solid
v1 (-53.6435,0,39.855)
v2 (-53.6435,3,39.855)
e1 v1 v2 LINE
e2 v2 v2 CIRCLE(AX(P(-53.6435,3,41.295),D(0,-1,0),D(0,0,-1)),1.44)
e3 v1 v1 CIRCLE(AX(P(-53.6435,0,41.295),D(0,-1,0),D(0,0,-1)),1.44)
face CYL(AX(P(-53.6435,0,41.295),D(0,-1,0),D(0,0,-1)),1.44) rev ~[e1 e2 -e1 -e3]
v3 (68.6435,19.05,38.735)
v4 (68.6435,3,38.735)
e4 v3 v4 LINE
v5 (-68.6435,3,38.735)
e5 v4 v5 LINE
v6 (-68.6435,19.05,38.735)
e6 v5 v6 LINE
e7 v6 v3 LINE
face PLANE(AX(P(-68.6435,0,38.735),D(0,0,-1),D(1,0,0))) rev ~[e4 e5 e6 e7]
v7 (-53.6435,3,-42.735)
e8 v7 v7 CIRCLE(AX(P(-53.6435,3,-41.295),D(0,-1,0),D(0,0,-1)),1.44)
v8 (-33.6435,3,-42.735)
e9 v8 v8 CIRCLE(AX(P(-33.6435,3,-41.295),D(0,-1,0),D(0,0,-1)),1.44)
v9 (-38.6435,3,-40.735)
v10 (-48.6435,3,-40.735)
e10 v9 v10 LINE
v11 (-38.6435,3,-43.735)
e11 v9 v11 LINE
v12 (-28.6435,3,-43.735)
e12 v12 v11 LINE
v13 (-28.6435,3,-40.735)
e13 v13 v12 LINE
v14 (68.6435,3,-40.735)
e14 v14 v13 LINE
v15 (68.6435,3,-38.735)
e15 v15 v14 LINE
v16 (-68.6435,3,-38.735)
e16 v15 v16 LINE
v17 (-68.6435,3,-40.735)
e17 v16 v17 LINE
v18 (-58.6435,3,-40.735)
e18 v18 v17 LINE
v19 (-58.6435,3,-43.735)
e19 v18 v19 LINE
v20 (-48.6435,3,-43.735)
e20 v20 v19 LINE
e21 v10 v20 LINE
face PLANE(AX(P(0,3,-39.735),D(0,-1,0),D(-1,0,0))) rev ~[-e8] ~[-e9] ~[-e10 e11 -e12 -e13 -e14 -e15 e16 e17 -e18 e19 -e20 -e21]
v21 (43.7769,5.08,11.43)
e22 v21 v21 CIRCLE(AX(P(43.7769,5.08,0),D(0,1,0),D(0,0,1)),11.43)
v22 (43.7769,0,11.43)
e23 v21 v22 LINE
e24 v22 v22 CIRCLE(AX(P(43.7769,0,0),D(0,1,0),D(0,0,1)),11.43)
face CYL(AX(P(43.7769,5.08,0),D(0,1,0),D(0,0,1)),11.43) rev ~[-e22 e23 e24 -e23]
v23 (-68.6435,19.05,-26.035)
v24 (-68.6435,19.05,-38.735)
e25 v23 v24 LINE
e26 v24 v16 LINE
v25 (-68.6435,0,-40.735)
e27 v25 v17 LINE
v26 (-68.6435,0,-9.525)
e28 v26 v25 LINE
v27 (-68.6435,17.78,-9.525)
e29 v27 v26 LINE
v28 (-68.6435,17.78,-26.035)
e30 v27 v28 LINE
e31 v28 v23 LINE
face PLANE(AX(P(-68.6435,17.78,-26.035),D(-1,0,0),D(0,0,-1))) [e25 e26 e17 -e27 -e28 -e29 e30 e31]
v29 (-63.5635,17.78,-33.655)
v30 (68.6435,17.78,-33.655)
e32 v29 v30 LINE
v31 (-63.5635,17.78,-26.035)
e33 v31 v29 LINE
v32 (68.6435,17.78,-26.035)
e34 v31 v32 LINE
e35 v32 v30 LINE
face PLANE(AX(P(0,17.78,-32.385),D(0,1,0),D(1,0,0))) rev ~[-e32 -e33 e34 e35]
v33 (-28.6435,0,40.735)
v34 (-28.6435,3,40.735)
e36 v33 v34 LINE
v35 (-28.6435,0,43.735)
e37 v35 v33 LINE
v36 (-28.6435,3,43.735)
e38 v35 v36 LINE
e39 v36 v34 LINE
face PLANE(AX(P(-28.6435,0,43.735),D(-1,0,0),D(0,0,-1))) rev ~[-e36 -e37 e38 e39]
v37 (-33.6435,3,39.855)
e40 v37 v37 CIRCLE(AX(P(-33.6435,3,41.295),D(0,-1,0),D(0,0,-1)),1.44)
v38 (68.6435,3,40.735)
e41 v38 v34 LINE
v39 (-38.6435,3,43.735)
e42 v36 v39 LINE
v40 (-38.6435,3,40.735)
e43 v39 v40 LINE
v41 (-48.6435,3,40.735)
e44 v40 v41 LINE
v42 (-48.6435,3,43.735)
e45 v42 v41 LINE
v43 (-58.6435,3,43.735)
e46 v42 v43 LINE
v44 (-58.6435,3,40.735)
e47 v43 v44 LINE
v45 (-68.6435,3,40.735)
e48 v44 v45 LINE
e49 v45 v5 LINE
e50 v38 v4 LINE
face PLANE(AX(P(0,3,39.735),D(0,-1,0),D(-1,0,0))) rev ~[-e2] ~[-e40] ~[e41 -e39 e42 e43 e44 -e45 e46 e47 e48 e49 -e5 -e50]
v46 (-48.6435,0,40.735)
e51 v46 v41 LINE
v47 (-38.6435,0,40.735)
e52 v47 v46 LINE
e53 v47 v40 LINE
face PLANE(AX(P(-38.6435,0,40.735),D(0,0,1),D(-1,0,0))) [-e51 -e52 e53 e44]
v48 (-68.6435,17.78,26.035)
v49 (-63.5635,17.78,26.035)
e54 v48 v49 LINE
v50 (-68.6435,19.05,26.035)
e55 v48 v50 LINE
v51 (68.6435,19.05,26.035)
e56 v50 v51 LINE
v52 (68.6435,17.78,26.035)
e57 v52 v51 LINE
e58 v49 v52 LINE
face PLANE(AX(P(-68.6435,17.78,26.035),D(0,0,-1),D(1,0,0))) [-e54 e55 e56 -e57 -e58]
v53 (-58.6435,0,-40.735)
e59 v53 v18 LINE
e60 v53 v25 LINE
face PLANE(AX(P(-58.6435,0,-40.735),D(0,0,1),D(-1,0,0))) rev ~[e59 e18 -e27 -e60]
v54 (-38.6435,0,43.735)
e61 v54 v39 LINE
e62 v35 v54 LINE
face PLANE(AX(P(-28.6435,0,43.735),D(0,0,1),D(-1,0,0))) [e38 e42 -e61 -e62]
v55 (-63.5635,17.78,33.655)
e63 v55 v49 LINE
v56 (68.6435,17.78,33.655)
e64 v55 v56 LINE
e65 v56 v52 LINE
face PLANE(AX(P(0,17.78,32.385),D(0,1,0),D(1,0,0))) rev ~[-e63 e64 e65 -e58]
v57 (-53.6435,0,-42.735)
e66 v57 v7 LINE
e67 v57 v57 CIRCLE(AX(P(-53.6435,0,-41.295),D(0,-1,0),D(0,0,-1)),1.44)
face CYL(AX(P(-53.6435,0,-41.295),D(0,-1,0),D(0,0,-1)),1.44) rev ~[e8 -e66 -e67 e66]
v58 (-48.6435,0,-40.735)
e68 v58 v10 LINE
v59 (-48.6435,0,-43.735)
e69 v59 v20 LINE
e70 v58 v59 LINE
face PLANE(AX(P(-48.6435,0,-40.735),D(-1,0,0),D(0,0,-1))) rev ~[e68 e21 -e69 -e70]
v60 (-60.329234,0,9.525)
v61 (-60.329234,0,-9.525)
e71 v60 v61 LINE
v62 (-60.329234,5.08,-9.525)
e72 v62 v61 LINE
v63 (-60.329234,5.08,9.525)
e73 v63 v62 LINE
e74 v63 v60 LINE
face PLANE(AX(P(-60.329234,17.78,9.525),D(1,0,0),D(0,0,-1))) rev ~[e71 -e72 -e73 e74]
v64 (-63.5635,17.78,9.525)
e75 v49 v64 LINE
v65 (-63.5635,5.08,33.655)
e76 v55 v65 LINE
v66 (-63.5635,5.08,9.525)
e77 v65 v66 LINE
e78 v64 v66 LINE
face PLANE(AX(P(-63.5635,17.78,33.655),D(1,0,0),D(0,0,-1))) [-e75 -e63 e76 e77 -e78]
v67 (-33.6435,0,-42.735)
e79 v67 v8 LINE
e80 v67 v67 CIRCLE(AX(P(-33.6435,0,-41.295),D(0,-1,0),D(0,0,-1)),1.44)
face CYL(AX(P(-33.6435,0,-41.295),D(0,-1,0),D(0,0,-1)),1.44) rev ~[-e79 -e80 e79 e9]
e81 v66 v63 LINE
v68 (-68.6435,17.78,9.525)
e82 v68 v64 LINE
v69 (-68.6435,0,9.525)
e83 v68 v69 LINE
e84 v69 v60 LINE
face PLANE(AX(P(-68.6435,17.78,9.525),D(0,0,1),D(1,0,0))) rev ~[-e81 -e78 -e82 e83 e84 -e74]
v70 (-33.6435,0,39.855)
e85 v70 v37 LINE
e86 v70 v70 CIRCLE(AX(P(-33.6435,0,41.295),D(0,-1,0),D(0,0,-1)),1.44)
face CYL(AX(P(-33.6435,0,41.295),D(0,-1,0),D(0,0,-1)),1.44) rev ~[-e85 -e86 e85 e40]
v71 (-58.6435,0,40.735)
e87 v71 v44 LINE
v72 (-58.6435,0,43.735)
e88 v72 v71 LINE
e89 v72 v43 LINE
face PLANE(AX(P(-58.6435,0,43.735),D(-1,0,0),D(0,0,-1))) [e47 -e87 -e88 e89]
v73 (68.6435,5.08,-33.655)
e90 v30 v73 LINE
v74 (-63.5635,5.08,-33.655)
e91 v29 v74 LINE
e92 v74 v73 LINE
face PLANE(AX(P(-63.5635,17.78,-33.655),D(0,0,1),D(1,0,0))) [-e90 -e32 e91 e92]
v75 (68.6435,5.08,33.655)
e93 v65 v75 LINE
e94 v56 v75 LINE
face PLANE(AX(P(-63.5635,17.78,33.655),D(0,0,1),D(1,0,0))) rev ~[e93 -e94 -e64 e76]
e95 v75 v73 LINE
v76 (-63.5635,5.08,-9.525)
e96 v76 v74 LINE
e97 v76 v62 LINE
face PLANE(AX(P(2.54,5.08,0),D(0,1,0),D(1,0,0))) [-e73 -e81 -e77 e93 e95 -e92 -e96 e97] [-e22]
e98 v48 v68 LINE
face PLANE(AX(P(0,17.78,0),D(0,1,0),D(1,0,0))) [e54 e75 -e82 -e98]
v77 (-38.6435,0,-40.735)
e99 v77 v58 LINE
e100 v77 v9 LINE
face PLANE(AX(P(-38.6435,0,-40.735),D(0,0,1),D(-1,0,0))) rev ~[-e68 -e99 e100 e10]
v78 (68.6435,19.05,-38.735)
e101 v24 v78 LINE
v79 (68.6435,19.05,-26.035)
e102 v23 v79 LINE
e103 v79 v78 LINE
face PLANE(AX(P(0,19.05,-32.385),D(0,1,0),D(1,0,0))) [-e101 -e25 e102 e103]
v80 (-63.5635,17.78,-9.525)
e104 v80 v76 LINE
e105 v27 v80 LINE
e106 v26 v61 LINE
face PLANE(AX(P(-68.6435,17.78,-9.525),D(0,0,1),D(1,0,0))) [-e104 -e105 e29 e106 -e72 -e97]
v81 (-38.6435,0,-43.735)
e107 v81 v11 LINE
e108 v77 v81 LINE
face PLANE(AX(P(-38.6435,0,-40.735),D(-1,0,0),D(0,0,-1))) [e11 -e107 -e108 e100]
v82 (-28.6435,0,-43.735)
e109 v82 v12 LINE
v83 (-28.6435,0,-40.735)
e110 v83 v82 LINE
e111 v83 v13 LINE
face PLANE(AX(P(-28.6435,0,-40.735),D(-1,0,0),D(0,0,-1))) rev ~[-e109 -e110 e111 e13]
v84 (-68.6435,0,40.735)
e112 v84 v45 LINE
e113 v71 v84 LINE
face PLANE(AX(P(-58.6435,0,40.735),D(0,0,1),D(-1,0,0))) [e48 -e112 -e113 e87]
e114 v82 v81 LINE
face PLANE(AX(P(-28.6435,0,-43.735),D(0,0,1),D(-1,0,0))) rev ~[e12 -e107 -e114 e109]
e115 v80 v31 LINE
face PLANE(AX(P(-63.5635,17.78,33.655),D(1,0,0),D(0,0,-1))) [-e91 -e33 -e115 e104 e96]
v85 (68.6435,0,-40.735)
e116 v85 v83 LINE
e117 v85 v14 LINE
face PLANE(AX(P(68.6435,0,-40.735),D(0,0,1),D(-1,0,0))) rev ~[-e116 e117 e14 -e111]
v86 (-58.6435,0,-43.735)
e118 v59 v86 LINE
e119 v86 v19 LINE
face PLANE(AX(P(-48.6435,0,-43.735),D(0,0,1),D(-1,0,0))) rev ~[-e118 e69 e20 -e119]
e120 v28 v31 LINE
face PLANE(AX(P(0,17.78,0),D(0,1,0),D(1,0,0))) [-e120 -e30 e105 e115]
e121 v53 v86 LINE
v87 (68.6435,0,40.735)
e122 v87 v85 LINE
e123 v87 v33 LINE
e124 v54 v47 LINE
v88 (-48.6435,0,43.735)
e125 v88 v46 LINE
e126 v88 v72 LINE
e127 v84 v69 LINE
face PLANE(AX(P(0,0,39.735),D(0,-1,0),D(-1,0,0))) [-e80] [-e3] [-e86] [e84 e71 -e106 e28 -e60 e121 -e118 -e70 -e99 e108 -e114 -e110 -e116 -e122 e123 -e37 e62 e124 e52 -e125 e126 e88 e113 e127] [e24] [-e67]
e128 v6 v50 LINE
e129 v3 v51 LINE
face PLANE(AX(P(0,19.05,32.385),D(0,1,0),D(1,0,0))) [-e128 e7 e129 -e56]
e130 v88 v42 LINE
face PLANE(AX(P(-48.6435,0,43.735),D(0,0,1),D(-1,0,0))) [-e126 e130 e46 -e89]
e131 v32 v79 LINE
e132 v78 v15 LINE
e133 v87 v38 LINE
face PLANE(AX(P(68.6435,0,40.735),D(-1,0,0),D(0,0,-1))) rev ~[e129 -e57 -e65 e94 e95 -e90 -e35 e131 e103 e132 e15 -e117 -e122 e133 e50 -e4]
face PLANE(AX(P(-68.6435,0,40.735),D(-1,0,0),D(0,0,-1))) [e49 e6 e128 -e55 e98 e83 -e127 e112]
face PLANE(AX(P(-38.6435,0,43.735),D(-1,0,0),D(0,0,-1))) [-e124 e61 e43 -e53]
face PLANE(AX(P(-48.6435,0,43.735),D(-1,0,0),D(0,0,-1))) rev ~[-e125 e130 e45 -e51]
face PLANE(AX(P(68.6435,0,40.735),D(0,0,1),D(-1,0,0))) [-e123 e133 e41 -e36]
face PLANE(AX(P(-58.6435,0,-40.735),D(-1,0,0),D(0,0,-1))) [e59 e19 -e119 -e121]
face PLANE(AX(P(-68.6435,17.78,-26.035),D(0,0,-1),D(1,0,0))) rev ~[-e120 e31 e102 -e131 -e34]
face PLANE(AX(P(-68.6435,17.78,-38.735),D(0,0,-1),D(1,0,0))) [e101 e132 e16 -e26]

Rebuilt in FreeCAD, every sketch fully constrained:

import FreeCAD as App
import Part
import Sketcher
Q = App.Units.Quantity

doc = App.newDocument("Part")
body = doc.addObject("PartDesign::Body", "Body")

sketch1 = body.newObject("Sketcher::SketchObject", "Sketch")
sketch1.AttachmentSupport = (doc.getObject("XZ_Plane"), [""])
sketch1.MapMode = "FlatFace"
sketch1.addGeometry([
    Part.LineSegment(App.Vector(-69, -39, 0), App.Vector(-69, 39, 0)),
    Part.LineSegment(App.Vector(-69, 39, 0), App.Vector(69, 39, 0)),
    Part.LineSegment(App.Vector(69, 39, 0), App.Vector(69, -39, 0)),
    Part.LineSegment(App.Vector(69, -39, 0), App.Vector(-69, -39, 0)),
], False)
sketch1.addConstraint([
    Sketcher.Constraint("Coincident", 0, 2, 1, 1),
    Sketcher.Constraint("Coincident", 1, 2, 2, 1),
    Sketcher.Constraint("Coincident", 2, 2, 3, 1),
    Sketcher.Constraint("Coincident", 3, 2, 0, 1),
    Sketcher.Constraint("Vertical", 0),
    Sketcher.Constraint("Horizontal", 1),
    Sketcher.Constraint("Vertical", 2),
    Sketcher.Constraint("Horizontal", 3),
    Sketcher.Constraint("Symmetric", 0, 2, 2, 2, -1, 1),
    Sketcher.Constraint("DistanceY", 0, 1, 0, 2, Q("3.05 in")),
    Sketcher.Constraint("DistanceX", 1, 1, 1, 2, Q("5.405 in")),
])
pad1 = body.newObject("PartDesign::Pad", "Pad")
pad1.Profile = sketch1
pad1.Length = Q("0.7 in")
pad1.Reversed = True

sketch2 = body.newObject("Sketcher::SketchObject", "Sketch001")
sketch2.AttachmentSupport = (doc.getObject("XZ_Plane"), [""])
sketch2.MapMode = "FlatFace"
sketch2.AttachmentOffset = App.Placement(App.Vector(0, 0, -0.7 * 25.4), App.Rotation())
sketch2.addGeometry([
    Part.LineSegment(App.Vector(-64, -34, 0), App.Vector(-64, 34, 0)),
    Part.LineSegment(App.Vector(-64, 34, 0), App.Vector(69, 34, 0)),
    Part.LineSegment(App.Vector(69, 34, 0), App.Vector(69, -34, 0)),
    Part.LineSegment(App.Vector(69, -34, 0), App.Vector(-64, -34, 0)),
], False)
sketch2.addConstraint([
    Sketcher.Constraint("Coincident", 0, 2, 1, 1),
    Sketcher.Constraint("Coincident", 1, 2, 2, 1),
    Sketcher.Constraint("Coincident", 2, 2, 3, 1),
    Sketcher.Constraint("Coincident", 3, 2, 0, 1),
    Sketcher.Constraint("Vertical", 0),
    Sketcher.Constraint("Horizontal", 1),
    Sketcher.Constraint("Vertical", 2),
    Sketcher.Constraint("Horizontal", 3),
    Sketcher.Constraint("DistanceY", 0, 1, 0, 2, Q("2.65 in")),
    Sketcher.Constraint("DistanceX", 1, 1, 1, 2, Q("5.205 in")),
    Sketcher.Constraint("DistanceY", -1, 1, 0, 2, Q("1.325 in")),
    Sketcher.Constraint("DistanceX", 0, 2, -1, 1, Q("2.5025 in")),
])
pocket1 = body.newObject("PartDesign::Pocket", "Pocket")
pocket1.Profile = sketch2
pocket1.Length = Q("0.5 in")
pocket1.Reversed = True

sketch3 = body.newObject("Sketcher::SketchObject", "Sketch002")
sketch3.AttachmentSupport = (doc.getObject("XZ_Plane"), [""])
sketch3.MapMode = "FlatFace"
sketch3.AttachmentOffset = App.Placement(App.Vector(0, 0, -0.2 * 25.4), App.Rotation())
sketch3.addGeometry(Part.Circle(App.Vector(44, 0, 0), App.Vector(0, 0, 1), 11), False)
sketch3.addConstraint([
    Sketcher.Constraint("PointOnObject", 0, 3, -1),
    Sketcher.Constraint("Diameter", 0, Q("0.9 in")),
    Sketcher.Constraint("DistanceX", -1, 1, 0, 3, Q("1.7235 in")),
])
pocket2 = body.newObject("PartDesign::Pocket", "Pocket001")
pocket2.Profile = sketch3
pocket2.Type = "ThroughAll"
pocket2.Reversed = True

sketch4 = body.newObject("Sketcher::SketchObject", "Sketch003")
sketch4.AttachmentSupport = (doc.getObject("XZ_Plane"), [""])
sketch4.MapMode = "FlatFace"
sketch4.AttachmentOffset = App.Placement(App.Vector(0, 0, -0.7 * 25.4), App.Rotation())
sketch4.addGeometry([
    Part.LineSegment(App.Vector(-69, -39, 0), App.Vector(-69, -26, 0)),
    Part.LineSegment(App.Vector(-69, -26, 0), App.Vector(69, -26, 0)),
    Part.LineSegment(App.Vector(69, -26, 0), App.Vector(69, -39, 0)),
    Part.LineSegment(App.Vector(69, -39, 0), App.Vector(-69, -39, 0)),
    Part.LineSegment(App.Vector(-69, 26, 0), App.Vector(-69, 39, 0)),
    Part.LineSegment(App.Vector(-69, 39, 0), App.Vector(69, 39, 0)),
    Part.LineSegment(App.Vector(69, 39, 0), App.Vector(69, 26, 0)),
    Part.LineSegment(App.Vector(69, 26, 0), App.Vector(-69, 26, 0)),
], False)
sketch4.addConstraint([
    Sketcher.Constraint("Coincident", 0, 2, 1, 1),
    Sketcher.Constraint("Coincident", 1, 2, 2, 1),
    Sketcher.Constraint("Coincident", 2, 2, 3, 1),
    Sketcher.Constraint("Coincident", 3, 2, 0, 1),
    Sketcher.Constraint("Coincident", 4, 2, 5, 1),
    Sketcher.Constraint("Coincident", 5, 2, 6, 1),
    Sketcher.Constraint("Coincident", 6, 2, 7, 1),
    Sketcher.Constraint("Coincident", 7, 2, 4, 1),
    Sketcher.Constraint("Vertical", 0),
    Sketcher.Constraint("Horizontal", 1),
    Sketcher.Constraint("Vertical", 2),
    Sketcher.Constraint("Horizontal", 3),
    Sketcher.Constraint("Vertical", 4),
    Sketcher.Constraint("Horizontal", 5),
    Sketcher.Constraint("Vertical", 6),
    Sketcher.Constraint("Horizontal", 7),
    Sketcher.Constraint("Symmetric", 2, 2, 4, 2, -1, 1),
    Sketcher.Constraint("Symmetric", 0, 2, 6, 2, -1, 1),
    Sketcher.Constraint("Vertical", 3, 2, 4, 2),
    Sketcher.Constraint("DistanceY", 0, 1, 0, 2, Q("0.5 in")),
    Sketcher.Constraint("DistanceX", 1, 1, 1, 2, Q("5.405 in")),
    Sketcher.Constraint("DistanceY", 0, 2, 4, 2, Q("2.55 in")),
])
pad2 = body.newObject("PartDesign::Pad", "Pad001")
pad2.Profile = sketch4
pad2.Length = Q("0.05 in")
pad2.Reversed = True

sketch5 = body.newObject("Sketcher::SketchObject", "Sketch004")
sketch5.AttachmentSupport = (doc.getObject("XZ_Plane"), [""])
sketch5.MapMode = "FlatFace"
sketch5.AttachmentOffset = App.Placement(App.Vector(0, 0, -0.7 * 25.4), App.Rotation())
sketch5.addGeometry([
    Part.LineSegment(App.Vector(-69, -10, 0), App.Vector(-69, 10, 0)),
    Part.LineSegment(App.Vector(-69, 10, 0), App.Vector(-60, 10, 0)),
    Part.LineSegment(App.Vector(-60, 10, 0), App.Vector(-60, -10, 0)),
    Part.LineSegment(App.Vector(-60, -10, 0), App.Vector(-69, -10, 0)),
], False)
sketch5.addConstraint([
    Sketcher.Constraint("Coincident", 0, 2, 1, 1),
    Sketcher.Constraint("Coincident", 1, 2, 2, 1),
    Sketcher.Constraint("Coincident", 2, 2, 3, 1),
    Sketcher.Constraint("Coincident", 3, 2, 0, 1),
    Sketcher.Constraint("Vertical", 0),
    Sketcher.Constraint("Horizontal", 1),
    Sketcher.Constraint("Vertical", 2),
    Sketcher.Constraint("Horizontal", 3),
    Sketcher.Constraint("DistanceY", 0, 1, 0, 2, Q("0.75 in")),
    Sketcher.Constraint("DistanceY", -1, 1, 0, 2, Q("0.375 in")),
    Sketcher.Constraint("DistanceX", 0, 2, -1, 1, Q("2.7025 in")),
    Sketcher.Constraint("DistanceX", 1, 1, 1, 2, 8.314266),
])
pocket3 = body.newObject("PartDesign::Pocket", "Pocket002")
pocket3.Profile = sketch5
pocket3.Type = "ThroughAll"
pocket3.Reversed = True

sketch6 = body.newObject("Sketcher::SketchObject", "Sketch005")
sketch6.AttachmentSupport = (doc.getObject("XZ_Plane"), [""])
sketch6.MapMode = "FlatFace"
sketch6.addGeometry([
    Part.LineSegment(App.Vector(68.6, 38.7, 0), App.Vector(68.6, 40.7, 0)),
    Part.LineSegment(App.Vector(68.6, 40.7, 0), App.Vector(-28.6, 40.7, 0)),
    Part.LineSegment(App.Vector(-28.6, 40.7, 0), App.Vector(-28.6, 43.7, 0)),
    Part.LineSegment(App.Vector(-28.6, 43.7, 0), App.Vector(-38.6, 43.7, 0)),
    Part.LineSegment(App.Vector(-38.6, 43.7, 0), App.Vector(-38.6, 40.7, 0)),
    Part.LineSegment(App.Vector(-38.6, 40.7, 0), App.Vector(-48.6, 40.7, 0)),
    Part.LineSegment(App.Vector(-48.6, 40.7, 0), App.Vector(-48.6, 43.7, 0)),
    Part.LineSegment(App.Vector(-48.6, 43.7, 0), App.Vector(-58.6, 43.7, 0)),
    Part.LineSegment(App.Vector(-58.6, 43.7, 0), App.Vector(-58.6, 40.7, 0)),
    Part.LineSegment(App.Vector(-58.6, 40.7, 0), App.Vector(-68.6, 40.7, 0)),
    Part.LineSegment(App.Vector(-68.6, 40.7, 0), App.Vector(-68.6, 38.7, 0)),
    Part.LineSegment(App.Vector(-68.6, 38.7, 0), App.Vector(68.6, 38.7, 0)),
    Part.LineSegment(App.Vector(68.6, -40.7, 0), App.Vector(68.6, -38.7, 0)),
    Part.LineSegment(App.Vector(68.6, -38.7, 0), App.Vector(-68.6, -38.7, 0)),
    Part.LineSegment(App.Vector(-68.6, -38.7, 0), App.Vector(-68.6, -40.7, 0)),
    Part.LineSegment(App.Vector(-68.6, -40.7, 0), App.Vector(-58.6, -40.7, 0)),
    Part.LineSegment(App.Vector(-58.6, -40.7, 0), App.Vector(-58.6, -43.7, 0)),
    Part.LineSegment(App.Vector(-58.6, -43.7, 0), App.Vector(-48.6, -43.7, 0)),
    Part.LineSegment(App.Vector(-48.6, -43.7, 0), App.Vector(-48.6, -40.7, 0)),
    Part.LineSegment(App.Vector(-48.6, -40.7, 0), App.Vector(-38.6, -40.7, 0)),
    Part.LineSegment(App.Vector(-38.6, -40.7, 0), App.Vector(-38.6, -43.7, 0)),
    Part.LineSegment(App.Vector(-38.6, -43.7, 0), App.Vector(-28.6, -43.7, 0)),
    Part.LineSegment(App.Vector(-28.6, -43.7, 0), App.Vector(-28.6, -40.7, 0)),
    Part.LineSegment(App.Vector(-28.6, -40.7, 0), App.Vector(68.6, -40.7, 0)),
], False)
sketch6.addConstraint([
    Sketcher.Constraint("Coincident", 0, 2, 1, 1),
    Sketcher.Constraint("Coincident", 1, 2, 2, 1),
    Sketcher.Constraint("Coincident", 2, 2, 3, 1),
    Sketcher.Constraint("Coincident", 3, 2, 4, 1),
    Sketcher.Constraint("Coincident", 4, 2, 5, 1),
    Sketcher.Constraint("Coincident", 5, 2, 6, 1),
    Sketcher.Constraint("Coincident", 6, 2, 7, 1),
    Sketcher.Constraint("Coincident", 7, 2, 8, 1),
    Sketcher.Constraint("Coincident", 8, 2, 9, 1),
    Sketcher.Constraint("Coincident", 9, 2, 10, 1),
    Sketcher.Constraint("Coincident", 10, 2, 11, 1),
    Sketcher.Constraint("Coincident", 11, 2, 0, 1),
    Sketcher.Constraint("Coincident", 12, 2, 13, 1),
    Sketcher.Constraint("Coincident", 13, 2, 14, 1),
    Sketcher.Constraint("Coincident", 14, 2, 15, 1),
    Sketcher.Constraint("Coincident", 15, 2, 16, 1),
    Sketcher.Constraint("Coincident", 16, 2, 17, 1),
    Sketcher.Constraint("Coincident", 17, 2, 18, 1),
    Sketcher.Constraint("Coincident", 18, 2, 19, 1),
    Sketcher.Constraint("Coincident", 19, 2, 20, 1),
    Sketcher.Constraint("Coincident", 20, 2, 21, 1),
    Sketcher.Constraint("Coincident", 21, 2, 22, 1),
    Sketcher.Constraint("Coincident", 22, 2, 23, 1),
    Sketcher.Constraint("Coincident", 23, 2, 12, 1),
    Sketcher.Constraint("Vertical", 0),
    Sketcher.Constraint("Horizontal", 1),
    Sketcher.Constraint("Vertical", 2),
    Sketcher.Constraint("Horizontal", 3),
    Sketcher.Constraint("Vertical", 4),
    Sketcher.Constraint("Horizontal", 5),
    Sketcher.Constraint("Vertical", 6),
    Sketcher.Constraint("Horizontal", 7),
    Sketcher.Constraint("Vertical", 8),
    Sketcher.Constraint("Horizontal", 9),
    Sketcher.Constraint("Vertical", 10),
    Sketcher.Constraint("Horizontal", 11),
    Sketcher.Constraint("Vertical", 12),
    Sketcher.Constraint("Horizontal", 13),
    Sketcher.Constraint("Vertical", 14),
    Sketcher.Constraint("Horizontal", 15),
    Sketcher.Constraint("Vertical", 16),
    Sketcher.Constraint("Horizontal", 17),
    Sketcher.Constraint("Vertical", 18),
    Sketcher.Constraint("Horizontal", 19),
    Sketcher.Constraint("Vertical", 20),
    Sketcher.Constraint("Horizontal", 21),
    Sketcher.Constraint("Vertical", 22),
    Sketcher.Constraint("Horizontal", 23),
    Sketcher.Constraint("Symmetric", 10, 2, 12, 2, -1, 1),
    Sketcher.Constraint("Symmetric", 0, 2, 14, 2, -1, 1),
    Sketcher.Constraint("Symmetric", 0, 2, 9, 2, -2),
    Sketcher.Constraint("Symmetric", 7, 2, 16, 2, -1),
    Sketcher.Constraint("Symmetric", 5, 2, 18, 2, -1),
    Sketcher.Constraint("Symmetric", 3, 2, 20, 2, -1),
    Sketcher.Constraint("Symmetric", 1, 2, 22, 2, -1),
    Sketcher.Constraint("Horizontal", 1, 2, 4, 2),
    Sketcher.Constraint("Horizontal", 3, 2, 6, 2),
    Sketcher.Constraint("Equal", 3, 5),
    Sketcher.Constraint("Equal", 5, 7),
    Sketcher.Constraint("Equal", 7, 9),
    Sketcher.Constraint("DistanceX", 11, 1, 11, 2, Q("5.405 in")),
    Sketcher.Constraint("DistanceY", 12, 2, 11, 2, Q("3.05 in")),
    Sketcher.Constraint("DistanceX", 1, 2, 1, 1, 97.287),
    Sketcher.Constraint("DistanceY", 0, 1, 0, 2, 2.0),
    Sketcher.Constraint("DistanceY", 2, 1, 2, 2, 3.0),
])
pad3 = body.newObject("PartDesign::Pad", "Pad002")
pad3.Profile = sketch6
pad3.Length = 3
pad3.Reversed = True

sketch7 = body.newObject("Sketcher::SketchObject", "Sketch006")
sketch7.AttachmentSupport = (doc.getObject("XZ_Plane"), [""])
sketch7.MapMode = "FlatFace"
sketch7.addGeometry([
    Part.Circle(App.Vector(-33.6, 41.3, 0), App.Vector(0, 0, 1), 1.4),
    Part.Circle(App.Vector(-53.6, 41.3, 0), App.Vector(0, 0, 1), 1.4),
    Part.Circle(App.Vector(-53.6, -41.3, 0), App.Vector(0, 0, 1), 1.4),
    Part.Circle(App.Vector(-33.6, -41.3, 0), App.Vector(0, 0, 1), 1.4),
], False)
sketch7.addConstraint([
    Sketcher.Constraint("Equal", 0, 1),
    Sketcher.Constraint("Equal", 1, 2),
    Sketcher.Constraint("Equal", 2, 3),
    Sketcher.Constraint("Symmetric", 1, 3, 2, 3, -1),
    Sketcher.Constraint("Symmetric", 0, 3, 3, 3, -1),
    Sketcher.Constraint("Horizontal", 0, 3, 1, 3),
    Sketcher.Constraint("Diameter", 0, 2.88),
    Sketcher.Constraint("DistanceX", 0, 3, -1, 1, 33.6435),
    Sketcher.Constraint("DistanceY", -1, 1, 0, 3, 41.295),
    Sketcher.Constraint("DistanceX", 1, 3, -1, 1, 53.6435),
])
pocket4 = body.newObject("PartDesign::Pocket", "Pocket003")
pocket4.Profile = sketch7
pocket4.Type = "ThroughAll"

doc.recompute()
